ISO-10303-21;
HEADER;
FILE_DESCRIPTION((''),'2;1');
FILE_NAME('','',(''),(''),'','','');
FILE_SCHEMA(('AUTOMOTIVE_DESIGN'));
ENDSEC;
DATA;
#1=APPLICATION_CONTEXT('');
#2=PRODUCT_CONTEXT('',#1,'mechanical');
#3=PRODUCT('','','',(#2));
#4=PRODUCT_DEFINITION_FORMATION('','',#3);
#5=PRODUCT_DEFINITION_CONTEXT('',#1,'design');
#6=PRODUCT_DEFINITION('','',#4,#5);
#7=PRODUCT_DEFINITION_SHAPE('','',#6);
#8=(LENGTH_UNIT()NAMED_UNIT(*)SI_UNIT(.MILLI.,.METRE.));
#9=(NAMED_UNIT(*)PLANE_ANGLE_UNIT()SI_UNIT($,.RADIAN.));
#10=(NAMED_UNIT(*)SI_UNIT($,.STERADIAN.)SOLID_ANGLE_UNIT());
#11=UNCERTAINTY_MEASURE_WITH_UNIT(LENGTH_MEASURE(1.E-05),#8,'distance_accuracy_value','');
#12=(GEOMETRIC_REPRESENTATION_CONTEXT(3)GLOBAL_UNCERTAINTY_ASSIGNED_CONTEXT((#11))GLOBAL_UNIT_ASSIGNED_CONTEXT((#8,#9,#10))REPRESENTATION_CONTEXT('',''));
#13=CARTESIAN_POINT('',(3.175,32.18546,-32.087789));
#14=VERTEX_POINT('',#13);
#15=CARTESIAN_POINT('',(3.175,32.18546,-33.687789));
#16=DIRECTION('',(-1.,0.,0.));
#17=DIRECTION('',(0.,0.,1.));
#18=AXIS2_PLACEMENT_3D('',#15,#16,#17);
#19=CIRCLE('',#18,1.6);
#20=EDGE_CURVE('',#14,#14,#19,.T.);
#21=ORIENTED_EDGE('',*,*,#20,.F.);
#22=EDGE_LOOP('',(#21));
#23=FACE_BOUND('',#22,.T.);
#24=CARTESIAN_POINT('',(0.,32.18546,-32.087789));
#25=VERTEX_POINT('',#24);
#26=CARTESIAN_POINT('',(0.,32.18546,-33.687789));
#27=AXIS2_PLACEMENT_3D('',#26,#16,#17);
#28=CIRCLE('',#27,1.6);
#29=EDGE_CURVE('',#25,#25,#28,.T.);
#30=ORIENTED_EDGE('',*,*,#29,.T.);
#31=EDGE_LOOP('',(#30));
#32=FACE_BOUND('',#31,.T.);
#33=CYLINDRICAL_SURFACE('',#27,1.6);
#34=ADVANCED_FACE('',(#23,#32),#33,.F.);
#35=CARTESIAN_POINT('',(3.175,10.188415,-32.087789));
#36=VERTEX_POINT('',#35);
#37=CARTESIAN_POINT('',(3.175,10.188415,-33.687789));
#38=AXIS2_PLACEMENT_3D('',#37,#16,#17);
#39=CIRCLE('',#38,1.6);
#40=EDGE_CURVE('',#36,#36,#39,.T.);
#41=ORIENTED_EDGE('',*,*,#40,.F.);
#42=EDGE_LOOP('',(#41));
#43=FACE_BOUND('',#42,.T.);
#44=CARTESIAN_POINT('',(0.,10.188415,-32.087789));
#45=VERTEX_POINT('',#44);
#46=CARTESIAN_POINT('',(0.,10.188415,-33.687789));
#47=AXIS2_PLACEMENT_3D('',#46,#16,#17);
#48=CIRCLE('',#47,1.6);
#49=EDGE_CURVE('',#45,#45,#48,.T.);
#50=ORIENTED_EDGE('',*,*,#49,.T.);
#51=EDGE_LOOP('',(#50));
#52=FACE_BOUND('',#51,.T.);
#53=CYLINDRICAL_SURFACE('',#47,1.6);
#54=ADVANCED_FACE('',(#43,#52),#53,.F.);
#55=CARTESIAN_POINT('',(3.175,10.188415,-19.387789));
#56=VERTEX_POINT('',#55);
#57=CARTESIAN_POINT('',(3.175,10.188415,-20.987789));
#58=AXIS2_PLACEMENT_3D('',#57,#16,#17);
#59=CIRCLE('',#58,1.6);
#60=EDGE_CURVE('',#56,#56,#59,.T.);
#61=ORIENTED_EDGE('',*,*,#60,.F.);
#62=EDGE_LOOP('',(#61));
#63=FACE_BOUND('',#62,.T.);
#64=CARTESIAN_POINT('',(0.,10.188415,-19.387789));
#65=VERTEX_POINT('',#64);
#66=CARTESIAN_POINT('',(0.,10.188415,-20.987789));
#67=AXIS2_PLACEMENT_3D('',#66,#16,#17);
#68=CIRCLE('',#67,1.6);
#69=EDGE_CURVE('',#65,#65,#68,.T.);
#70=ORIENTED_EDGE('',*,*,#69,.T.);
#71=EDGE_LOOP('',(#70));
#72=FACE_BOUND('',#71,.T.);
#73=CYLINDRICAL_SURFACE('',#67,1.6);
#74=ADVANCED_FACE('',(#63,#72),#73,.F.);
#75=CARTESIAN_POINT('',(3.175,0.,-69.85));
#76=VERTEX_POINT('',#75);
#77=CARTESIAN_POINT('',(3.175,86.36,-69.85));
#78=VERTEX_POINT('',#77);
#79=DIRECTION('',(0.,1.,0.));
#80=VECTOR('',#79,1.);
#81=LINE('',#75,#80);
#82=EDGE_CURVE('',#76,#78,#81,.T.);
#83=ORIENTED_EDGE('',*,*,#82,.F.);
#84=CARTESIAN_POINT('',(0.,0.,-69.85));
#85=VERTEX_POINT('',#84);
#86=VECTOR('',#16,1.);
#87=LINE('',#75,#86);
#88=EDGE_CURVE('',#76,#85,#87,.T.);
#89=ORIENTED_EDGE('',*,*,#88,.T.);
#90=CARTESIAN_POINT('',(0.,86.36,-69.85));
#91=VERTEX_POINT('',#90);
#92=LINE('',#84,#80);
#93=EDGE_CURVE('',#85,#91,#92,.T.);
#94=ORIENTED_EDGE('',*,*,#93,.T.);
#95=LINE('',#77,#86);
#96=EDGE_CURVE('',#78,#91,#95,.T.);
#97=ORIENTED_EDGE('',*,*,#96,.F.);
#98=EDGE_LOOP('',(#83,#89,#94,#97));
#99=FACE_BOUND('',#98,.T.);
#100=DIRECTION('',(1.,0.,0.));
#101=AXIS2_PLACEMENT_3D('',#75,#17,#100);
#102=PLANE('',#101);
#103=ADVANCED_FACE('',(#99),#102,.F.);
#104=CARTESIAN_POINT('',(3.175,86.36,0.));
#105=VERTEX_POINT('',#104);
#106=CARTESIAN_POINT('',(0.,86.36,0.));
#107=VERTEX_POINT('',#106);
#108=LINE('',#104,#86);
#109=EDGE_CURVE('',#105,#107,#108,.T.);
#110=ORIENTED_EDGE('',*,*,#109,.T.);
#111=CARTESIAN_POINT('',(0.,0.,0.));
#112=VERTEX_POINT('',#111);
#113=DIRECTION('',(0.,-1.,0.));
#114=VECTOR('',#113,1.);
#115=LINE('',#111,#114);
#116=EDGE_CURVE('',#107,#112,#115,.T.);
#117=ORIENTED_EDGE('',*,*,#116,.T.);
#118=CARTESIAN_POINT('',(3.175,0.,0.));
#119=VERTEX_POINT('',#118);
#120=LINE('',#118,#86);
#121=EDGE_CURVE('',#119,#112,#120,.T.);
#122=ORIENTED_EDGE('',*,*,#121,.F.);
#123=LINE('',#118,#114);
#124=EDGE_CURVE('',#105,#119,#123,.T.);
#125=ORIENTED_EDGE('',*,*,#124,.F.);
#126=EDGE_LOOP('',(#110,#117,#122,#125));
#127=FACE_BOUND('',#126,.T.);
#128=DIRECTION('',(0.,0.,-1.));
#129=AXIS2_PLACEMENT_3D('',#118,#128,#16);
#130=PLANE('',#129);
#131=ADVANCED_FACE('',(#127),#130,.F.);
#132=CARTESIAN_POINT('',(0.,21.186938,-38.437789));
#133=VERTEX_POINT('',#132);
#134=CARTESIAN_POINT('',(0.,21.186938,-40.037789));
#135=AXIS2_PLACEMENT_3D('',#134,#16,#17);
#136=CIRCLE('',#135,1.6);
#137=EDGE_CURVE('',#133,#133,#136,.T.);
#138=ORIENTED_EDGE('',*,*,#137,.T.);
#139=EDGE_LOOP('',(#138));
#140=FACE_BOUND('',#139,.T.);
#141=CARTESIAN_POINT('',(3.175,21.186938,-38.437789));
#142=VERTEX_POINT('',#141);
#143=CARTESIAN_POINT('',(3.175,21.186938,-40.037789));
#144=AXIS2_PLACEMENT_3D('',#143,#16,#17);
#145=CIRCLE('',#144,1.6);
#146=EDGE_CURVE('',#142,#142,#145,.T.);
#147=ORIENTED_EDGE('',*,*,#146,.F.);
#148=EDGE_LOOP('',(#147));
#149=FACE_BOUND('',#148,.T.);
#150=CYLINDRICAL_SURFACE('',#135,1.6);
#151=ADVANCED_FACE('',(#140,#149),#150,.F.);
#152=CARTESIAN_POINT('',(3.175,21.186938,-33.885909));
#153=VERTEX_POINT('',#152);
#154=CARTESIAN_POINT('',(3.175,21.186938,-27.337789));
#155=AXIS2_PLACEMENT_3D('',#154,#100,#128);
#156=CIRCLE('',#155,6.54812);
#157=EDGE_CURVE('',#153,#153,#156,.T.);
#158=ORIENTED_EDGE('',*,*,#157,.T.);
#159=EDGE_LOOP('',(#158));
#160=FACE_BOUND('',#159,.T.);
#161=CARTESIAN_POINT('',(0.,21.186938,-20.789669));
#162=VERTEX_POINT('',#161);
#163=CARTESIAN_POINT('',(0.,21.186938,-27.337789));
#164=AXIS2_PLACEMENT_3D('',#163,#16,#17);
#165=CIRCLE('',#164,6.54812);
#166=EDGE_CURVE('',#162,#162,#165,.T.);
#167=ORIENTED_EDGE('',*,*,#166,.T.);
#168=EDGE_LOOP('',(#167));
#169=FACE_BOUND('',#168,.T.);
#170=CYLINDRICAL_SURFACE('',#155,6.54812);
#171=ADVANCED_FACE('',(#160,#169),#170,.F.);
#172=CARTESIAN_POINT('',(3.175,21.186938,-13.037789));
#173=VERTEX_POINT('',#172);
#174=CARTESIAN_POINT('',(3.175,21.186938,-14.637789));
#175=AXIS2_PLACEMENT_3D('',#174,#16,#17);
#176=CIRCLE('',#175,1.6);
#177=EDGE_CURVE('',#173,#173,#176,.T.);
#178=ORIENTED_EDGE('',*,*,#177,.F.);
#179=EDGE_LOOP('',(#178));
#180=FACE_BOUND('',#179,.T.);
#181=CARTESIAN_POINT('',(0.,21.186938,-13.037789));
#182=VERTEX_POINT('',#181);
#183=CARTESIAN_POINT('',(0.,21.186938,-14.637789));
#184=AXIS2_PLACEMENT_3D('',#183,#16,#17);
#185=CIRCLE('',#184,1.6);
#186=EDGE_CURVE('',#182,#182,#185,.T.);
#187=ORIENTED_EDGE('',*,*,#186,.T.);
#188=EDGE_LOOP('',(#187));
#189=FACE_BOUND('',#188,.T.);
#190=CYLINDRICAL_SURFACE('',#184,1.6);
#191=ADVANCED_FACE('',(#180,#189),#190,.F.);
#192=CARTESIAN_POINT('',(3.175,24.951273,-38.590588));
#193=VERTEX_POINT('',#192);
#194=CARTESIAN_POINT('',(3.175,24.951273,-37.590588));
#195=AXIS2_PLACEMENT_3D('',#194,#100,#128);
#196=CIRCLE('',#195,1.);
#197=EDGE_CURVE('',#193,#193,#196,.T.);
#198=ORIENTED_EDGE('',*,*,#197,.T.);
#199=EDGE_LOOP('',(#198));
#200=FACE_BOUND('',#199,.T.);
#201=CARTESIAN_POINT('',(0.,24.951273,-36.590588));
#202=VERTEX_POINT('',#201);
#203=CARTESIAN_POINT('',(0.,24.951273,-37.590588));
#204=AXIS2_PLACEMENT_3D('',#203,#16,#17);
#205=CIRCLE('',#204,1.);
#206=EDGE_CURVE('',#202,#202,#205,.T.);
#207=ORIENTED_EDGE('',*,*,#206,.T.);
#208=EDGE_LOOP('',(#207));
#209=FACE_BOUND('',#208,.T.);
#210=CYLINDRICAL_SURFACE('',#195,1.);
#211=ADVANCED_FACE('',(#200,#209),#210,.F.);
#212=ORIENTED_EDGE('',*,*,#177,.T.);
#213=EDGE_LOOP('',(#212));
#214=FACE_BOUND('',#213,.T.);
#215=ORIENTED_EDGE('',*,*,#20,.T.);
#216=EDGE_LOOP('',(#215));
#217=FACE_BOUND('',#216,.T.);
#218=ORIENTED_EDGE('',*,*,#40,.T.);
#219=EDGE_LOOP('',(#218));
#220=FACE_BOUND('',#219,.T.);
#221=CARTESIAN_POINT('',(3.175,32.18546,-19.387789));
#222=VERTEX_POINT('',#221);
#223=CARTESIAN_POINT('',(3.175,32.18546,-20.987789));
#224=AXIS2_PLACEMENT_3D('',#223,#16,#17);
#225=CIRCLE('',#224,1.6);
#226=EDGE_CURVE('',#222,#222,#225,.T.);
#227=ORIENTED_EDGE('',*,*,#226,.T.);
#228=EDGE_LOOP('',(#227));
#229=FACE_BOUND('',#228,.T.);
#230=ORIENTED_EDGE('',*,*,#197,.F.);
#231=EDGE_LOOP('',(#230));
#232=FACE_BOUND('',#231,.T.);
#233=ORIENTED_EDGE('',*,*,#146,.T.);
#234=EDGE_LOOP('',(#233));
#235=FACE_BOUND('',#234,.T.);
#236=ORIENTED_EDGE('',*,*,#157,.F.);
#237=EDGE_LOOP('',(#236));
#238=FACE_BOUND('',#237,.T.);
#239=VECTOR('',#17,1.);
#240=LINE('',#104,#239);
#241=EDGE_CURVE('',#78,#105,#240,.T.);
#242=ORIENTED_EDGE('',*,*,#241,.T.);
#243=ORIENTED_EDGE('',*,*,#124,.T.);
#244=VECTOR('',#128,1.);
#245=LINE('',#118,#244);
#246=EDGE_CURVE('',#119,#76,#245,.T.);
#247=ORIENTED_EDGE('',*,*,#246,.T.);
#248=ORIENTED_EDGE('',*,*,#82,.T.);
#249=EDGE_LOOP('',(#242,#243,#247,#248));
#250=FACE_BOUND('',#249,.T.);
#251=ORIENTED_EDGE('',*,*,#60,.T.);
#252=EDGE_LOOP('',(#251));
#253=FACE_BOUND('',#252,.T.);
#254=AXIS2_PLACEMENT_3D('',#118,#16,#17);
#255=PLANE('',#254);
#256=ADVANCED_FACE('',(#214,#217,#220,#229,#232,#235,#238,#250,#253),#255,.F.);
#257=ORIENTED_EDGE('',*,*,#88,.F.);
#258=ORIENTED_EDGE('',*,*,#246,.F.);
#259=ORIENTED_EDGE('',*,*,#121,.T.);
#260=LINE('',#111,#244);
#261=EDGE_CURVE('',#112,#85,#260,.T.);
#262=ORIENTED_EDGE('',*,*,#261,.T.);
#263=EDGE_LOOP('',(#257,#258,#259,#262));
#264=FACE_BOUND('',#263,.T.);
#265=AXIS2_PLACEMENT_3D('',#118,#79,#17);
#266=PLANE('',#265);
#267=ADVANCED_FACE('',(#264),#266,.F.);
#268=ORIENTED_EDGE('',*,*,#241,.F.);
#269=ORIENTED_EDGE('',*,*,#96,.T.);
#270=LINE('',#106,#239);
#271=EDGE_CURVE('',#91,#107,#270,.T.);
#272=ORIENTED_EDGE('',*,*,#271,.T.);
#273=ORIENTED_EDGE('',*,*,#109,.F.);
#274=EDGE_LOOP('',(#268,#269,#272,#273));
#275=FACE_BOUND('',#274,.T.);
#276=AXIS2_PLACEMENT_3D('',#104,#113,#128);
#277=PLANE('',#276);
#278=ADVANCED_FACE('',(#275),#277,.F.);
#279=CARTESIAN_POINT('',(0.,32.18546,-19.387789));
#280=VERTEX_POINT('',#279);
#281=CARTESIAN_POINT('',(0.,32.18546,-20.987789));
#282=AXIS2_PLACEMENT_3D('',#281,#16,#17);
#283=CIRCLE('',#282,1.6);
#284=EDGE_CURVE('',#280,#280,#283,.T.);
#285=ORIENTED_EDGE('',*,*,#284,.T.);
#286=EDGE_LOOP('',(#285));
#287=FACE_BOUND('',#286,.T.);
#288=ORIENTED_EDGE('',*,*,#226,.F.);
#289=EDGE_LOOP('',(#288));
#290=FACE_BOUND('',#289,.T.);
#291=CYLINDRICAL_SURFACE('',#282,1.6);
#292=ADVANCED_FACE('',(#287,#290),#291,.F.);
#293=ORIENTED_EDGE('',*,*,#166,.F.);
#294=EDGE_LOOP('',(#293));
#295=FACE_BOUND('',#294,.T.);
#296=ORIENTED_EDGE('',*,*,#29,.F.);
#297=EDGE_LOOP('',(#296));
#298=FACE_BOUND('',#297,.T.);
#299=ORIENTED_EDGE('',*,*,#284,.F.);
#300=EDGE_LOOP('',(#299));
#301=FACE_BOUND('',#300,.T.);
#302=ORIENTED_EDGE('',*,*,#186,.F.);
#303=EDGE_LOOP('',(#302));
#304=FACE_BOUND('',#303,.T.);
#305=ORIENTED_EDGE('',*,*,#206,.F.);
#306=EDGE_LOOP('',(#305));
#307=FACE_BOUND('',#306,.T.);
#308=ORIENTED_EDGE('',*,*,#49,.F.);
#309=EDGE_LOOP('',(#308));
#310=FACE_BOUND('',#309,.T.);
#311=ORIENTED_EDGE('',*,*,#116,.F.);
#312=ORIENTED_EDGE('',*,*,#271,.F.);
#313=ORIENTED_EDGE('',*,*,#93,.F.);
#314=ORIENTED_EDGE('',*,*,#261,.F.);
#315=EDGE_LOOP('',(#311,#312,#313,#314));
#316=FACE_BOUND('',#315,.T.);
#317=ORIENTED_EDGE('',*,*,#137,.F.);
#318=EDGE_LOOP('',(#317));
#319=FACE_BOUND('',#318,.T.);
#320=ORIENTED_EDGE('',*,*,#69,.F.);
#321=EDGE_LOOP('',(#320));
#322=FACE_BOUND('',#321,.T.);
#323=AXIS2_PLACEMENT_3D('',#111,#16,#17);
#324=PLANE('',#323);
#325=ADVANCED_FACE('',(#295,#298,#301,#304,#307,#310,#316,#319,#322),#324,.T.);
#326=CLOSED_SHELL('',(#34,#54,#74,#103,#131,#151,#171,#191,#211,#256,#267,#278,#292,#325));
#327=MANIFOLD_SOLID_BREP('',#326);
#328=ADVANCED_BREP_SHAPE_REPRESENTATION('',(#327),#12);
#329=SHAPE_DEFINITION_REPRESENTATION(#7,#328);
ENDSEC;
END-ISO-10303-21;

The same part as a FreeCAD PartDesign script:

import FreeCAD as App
import Part
import Sketcher
from FreeCAD import Vector
Q = App.Units.Quantity

doc = App.newDocument("Part")
body = doc.addObject("PartDesign::Body", "Body")

# Sketch on YZ plane
sketch1 = body.newObject("Sketcher::SketchObject", "Sketch")
sketch1.AttachmentSupport = (doc.getObject("YZ_Plane"), [""])
sketch1.MapMode = "FlatFace"
sketch1.addGeometry([
    Part.LineSegment(Vector(86.36, 0, 0), Vector(0, 0, 0)),
    Part.LineSegment(Vector(0, 0, 0), Vector(0, -69.85, 0)),
    Part.LineSegment(Vector(0, -69.85, 0), Vector(86.36, -69.85, 0)),
    Part.LineSegment(Vector(86.36, -69.85, 0), Vector(86.36, 0, 0)),
], False)
sketch1.addConstraint([
    Sketcher.Constraint("Coincident", 0, 2, 1, 1),
    Sketcher.Constraint("Coincident", 1, 2, 2, 1),
    Sketcher.Constraint("Coincident", 2, 2, 3, 1),
    Sketcher.Constraint("Coincident", 3, 2, 0, 1),
    Sketcher.Constraint("Horizontal", 0),
    Sketcher.Constraint("Vertical", 1),
    Sketcher.Constraint("Horizontal", 2),
    Sketcher.Constraint("Vertical", 3),
    Sketcher.Constraint("Coincident", 0, 2, -1, 1),
    Sketcher.Constraint("DistanceX", 0, 2, 0, 1, Q("3.4 in")),
    Sketcher.Constraint("DistanceY", 1, 2, 1, 1, Q("2.75 in")),
])
pad1 = body.newObject("PartDesign::Pad", "Pad")
pad1.Profile = sketch1
pad1.Length = Q("0.125 in")

# Sketch on YZ plane
sketch2 = body.newObject("Sketcher::SketchObject", "Sketch001")
sketch2.AttachmentSupport = (doc.getObject("YZ_Plane"), [""])
sketch2.MapMode = "FlatFace"
sketch2.AttachmentOffset = App.Placement(Vector(0, 0, 0.125 * 25.4), App.Rotation())
sketch2.addGeometry(Part.Circle(Vector(21.186938, -27.337789, 0), Vector(0, 0, 1), 6.54812), False)
sketch2.addConstraint([
    Sketcher.Constraint("Diameter", 0, Q("0.5156 in")),
    Sketcher.Constraint("DistanceY", 0, 3, -1, 1, 27.337789),
    Sketcher.Constraint("DistanceX", -1, 1, 0, 3, 21.186938),
])
doc.recompute()
hole = body.newObject("PartDesign::Hole", "Hole")
hole.Profile = sketch2
hole.ThreadType = "None"
hole.Diameter = Q("0.5156 in")
hole.DepthType = "Dimension"
hole.Depth = Q("1 in")
hole.DrillPoint = "Angled"
hole.DrillPointAngle = 118

# Sketch on YZ plane
sketch3 = body.newObject("Sketcher::SketchObject", "Sketch002")
sketch3.AttachmentSupport = (doc.getObject("YZ_Plane"), [""])
sketch3.MapMode = "FlatFace"
sketch3.addGeometry([
    Part.Circle(Vector(21.186938, -40.037789, 0), Vector(0, 0, 1), 1.6),  # 0
    Part.Circle(Vector(32.18546, -33.687789, 0), Vector(0, 0, 1), 1.6),  # 1
    Part.Circle(Vector(32.18546, -20.987789, 0), Vector(0, 0, 1), 1.6),  # 2
    Part.Circle(Vector(21.186938, -14.637789, 0), Vector(0, 0, 1), 1.6),  # 3
    Part.Circle(Vector(10.188415, -20.987789, 0), Vector(0, 0, 1), 1.6),  # 4
    Part.Circle(Vector(10.188415, -33.687789, 0), Vector(0, 0, 1), 1.6),  # 5
    Part.Circle(Vector(21.186938, -27.337789, 0), Vector(0, 0, 1), 1.6),  # 6
], False)
sketch3.addConstraint([
    Sketcher.Constraint("Equal", 0, 1),
    Sketcher.Constraint("Equal", 1, 2),
    Sketcher.Constraint("Equal", 2, 3),
    Sketcher.Constraint("Equal", 3, 4),
    Sketcher.Constraint("Equal", 4, 5),
    Sketcher.Constraint("Equal", 5, 6),
    Sketcher.Constraint("Horizontal", 2, 3, 4, 3),
    Sketcher.Constraint("Horizontal", 1, 3, 5, 3),
    Sketcher.Constraint("Vertical", 1, 3, 2, 3),
    Sketcher.Constraint("Vertical", 0, 3, 3, 3),
    Sketcher.Constraint("Vertical", 4, 3, 5, 3),
    Sketcher.Constraint("Vertical", 3, 3, 6, 3),
    Sketcher.Constraint("DistanceY", 0, 3, 3, 3, Q("1 in")),
    Sketcher.Constraint("DistanceY", 1, 3, 2, 3, Q("0.5 in")),
    Sketcher.Constraint("DistanceY", 0, 3, 6, 3, Q("0.5 in")),
    Sketcher.Constraint("Diameter", 0, 3.2),
    Sketcher.Constraint("DistanceY", 0, 3, 1, 3, Q("0.25 in")),
    Sketcher.Constraint("DistanceY", 0, 3, -1, 1, 40.037789),
    Sketcher.Constraint("DistanceX", -1, 1, 1, 3, 32.18546),
    Sketcher.Constraint("DistanceX", -1, 1, 0, 3, 21.186938),
    Sketcher.Constraint("DistanceX", -1, 1, 4, 3, 10.188415),
])
doc.recompute()
hole2 = body.newObject("PartDesign::Hole", "Hole001")
hole2.Profile = sketch3
hole2.ThreadType = "None"
hole2.Diameter = 3.2
hole2.DepthType = "Dimension"
hole2.Depth = Q("1 in")
hole2.DrillPoint = "Angled"
hole2.DrillPointAngle = 118
hole2.Reversed = True

# Sketch on YZ plane
sketch4 = body.newObject("Sketcher::SketchObject", "Sketch003")
sketch4.AttachmentSupport = (doc.getObject("YZ_Plane"), [""])
sketch4.MapMode = "FlatFace"
sketch4.AttachmentOffset = App.Placement(Vector(0, 0, 0.125 * 25.4), App.Rotation())
sketch4.addGeometry(Part.Circle(Vector(24.951273, -37.590588, 0), Vector(0, 0, 1), 1), False)
sketch4.addConstraint([
    Sketcher.Constraint("Diameter", 0, 2.0),
    Sketcher.Constraint("DistanceX", -1, 1, 0, 3, 24.951273),
    Sketcher.Constraint("DistanceY", 0, 3, -1, 1, 37.590588),
])
doc.recompute()
hole3 = body.newObject("PartDesign::Hole", "Hole002")
hole3.Profile = sketch4
hole3.ThreadType = "None"
hole3.Diameter = 2
hole3.DepthType = "Dimension"
hole3.Depth = Q("1 in")
hole3.DrillPoint = "Angled"
hole3.DrillPointAngle = 118

doc.recompute()
